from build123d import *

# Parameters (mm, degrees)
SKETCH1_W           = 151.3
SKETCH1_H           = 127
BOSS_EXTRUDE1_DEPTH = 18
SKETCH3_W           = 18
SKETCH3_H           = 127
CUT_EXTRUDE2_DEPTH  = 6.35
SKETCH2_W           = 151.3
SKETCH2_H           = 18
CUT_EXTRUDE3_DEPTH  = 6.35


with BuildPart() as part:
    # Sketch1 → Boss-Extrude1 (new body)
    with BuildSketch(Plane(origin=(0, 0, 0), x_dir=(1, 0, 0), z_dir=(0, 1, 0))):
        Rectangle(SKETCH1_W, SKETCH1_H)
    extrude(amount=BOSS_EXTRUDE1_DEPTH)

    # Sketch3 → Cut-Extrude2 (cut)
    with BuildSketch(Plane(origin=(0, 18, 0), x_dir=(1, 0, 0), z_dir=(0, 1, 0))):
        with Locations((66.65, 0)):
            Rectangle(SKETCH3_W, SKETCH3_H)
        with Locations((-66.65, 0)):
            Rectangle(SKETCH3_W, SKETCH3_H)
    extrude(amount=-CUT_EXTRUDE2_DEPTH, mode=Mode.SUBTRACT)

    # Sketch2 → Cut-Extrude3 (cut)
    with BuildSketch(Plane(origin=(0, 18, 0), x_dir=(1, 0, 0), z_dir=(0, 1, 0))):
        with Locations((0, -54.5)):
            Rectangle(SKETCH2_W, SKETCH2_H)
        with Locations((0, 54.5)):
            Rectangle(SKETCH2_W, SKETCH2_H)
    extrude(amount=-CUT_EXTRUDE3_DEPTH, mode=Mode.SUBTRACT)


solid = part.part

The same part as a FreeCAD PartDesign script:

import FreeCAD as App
import Part
import Sketcher

V = App.Vector
Q = App.Units.Quantity

doc = App.newDocument("Part")
params = doc.addObject("Spreadsheet::Sheet", "Params")
for row, (alias, value) in enumerate([
    ("sketch1_height", "127 mm"),
    ("sketch1_width", "151.3 mm"),
    ("pad1_length", "18 mm"),
    ("sketch2_width", "18 mm"),
    ("sketch2_height", "127 mm"),
    ("pocket1_length", "6.35 mm"),
    ("sketch3_height", "18 mm"),
    ("sketch3_width", "151.3 mm"),
    ("pocket2_length", "6.35 mm"),
], start=1):
    params.set(f"A{row}", alias)
    params.set(f"B{row}", "=" + value)
    params.setAlias(f"B{row}", alias)

body = doc.addObject("PartDesign::Body", "Body")

sketch1 = body.newObject("Sketcher::SketchObject", "Sketch")
sketch1.AttachmentSupport = (doc.getObject("XZ_Plane"), [""])
sketch1.MapMode = "FlatFace"
sketch1.addGeometry([
    Part.LineSegment(V(-76, -64, 0), V(-76, 64, 0)),
    Part.LineSegment(V(-76, 64, 0), V(76, 64, 0)),
    Part.LineSegment(V(76, 64, 0), V(76, -64, 0)),
    Part.LineSegment(V(76, -64, 0), V(-76, -64, 0)),
], False)
sketch1.addConstraint([
    Sketcher.Constraint("Coincident", 0, 2, 1, 1),
    Sketcher.Constraint("Coincident", 1, 2, 2, 1),
    Sketcher.Constraint("Coincident", 2, 2, 3, 1),
    Sketcher.Constraint("Coincident", 3, 2, 0, 1),
    Sketcher.Constraint("Vertical", 0),
    Sketcher.Constraint("Horizontal", 1),
    Sketcher.Constraint("Vertical", 2),
    Sketcher.Constraint("Horizontal", 3),
    Sketcher.Constraint("Symmetric", 0, 2, 2, 2, -1, 1),
    Sketcher.Constraint("DistanceY", 0, 1, 0, 2, Q("127 mm")),
    Sketcher.Constraint("DistanceX", 1, 1, 1, 2, Q("151.3 mm")),
])
sketch1.setExpression("Constraints[9]", "Params.sketch1_height")
sketch1.setExpression("Constraints[10]", "Params.sketch1_width")
pad1 = body.newObject("PartDesign::Pad", "Pad")
pad1.Profile = sketch1
pad1.setExpression("Length", "Params.pad1_length")
pad1.Reversed = True

sketch2 = body.newObject("Sketcher::SketchObject", "Sketch001")
sketch2.AttachmentSupport = (doc.getObject("XZ_Plane"), [""])
sketch2.MapMode = "FlatFace"
sketch2.AttachmentOffset = App.Placement(V(0, 0, -18), App.Rotation())
sketch2.addGeometry([
    Part.LineSegment(V(58, -64, 0), V(58, 64, 0)),
    Part.LineSegment(V(58, 64, 0), V(76, 64, 0)),
    Part.LineSegment(V(76, 64, 0), V(76, -64, 0)),
    Part.LineSegment(V(76, -64, 0), V(58, -64, 0)),
    Part.LineSegment(V(-76, -64, 0), V(-76, 64, 0)),
    Part.LineSegment(V(-76, 64, 0), V(-58, 64, 0)),
    Part.LineSegment(V(-58, 64, 0), V(-58, -64, 0)),
    Part.LineSegment(V(-58, -64, 0), V(-76, -64, 0)),
], False)
sketch2.addConstraint([
    Sketcher.Constraint("Coincident", 0, 2, 1, 1),
    Sketcher.Constraint("Coincident", 1, 2, 2, 1),
    Sketcher.Constraint("Coincident", 2, 2, 3, 1),
    Sketcher.Constraint("Coincident", 3, 2, 0, 1),
    Sketcher.Constraint("Coincident", 4, 2, 5, 1),
    Sketcher.Constraint("Coincident", 5, 2, 6, 1),
    Sketcher.Constraint("Coincident", 6, 2, 7, 1),
    Sketcher.Constraint("Coincident", 7, 2, 4, 1),
    Sketcher.Constraint("Vertical", 0),
    Sketcher.Constraint("Horizontal", 1),
    Sketcher.Constraint("Vertical", 2),
    Sketcher.Constraint("Horizontal", 3),
    Sketcher.Constraint("Vertical", 4),
    Sketcher.Constraint("Horizontal", 5),
    Sketcher.Constraint("Vertical", 6),
    Sketcher.Constraint("Horizontal", 7),
    Sketcher.Constraint("Symmetric", 2, 2, 4, 2, -1, 1),
    Sketcher.Constraint("Symmetric", 0, 2, 6, 2, -1, 1),
    Sketcher.Constraint("Horizontal", 1, 2, 4, 2),
    Sketcher.Constraint("DistanceX", 1, 1, 1, 2, Q("18 mm")),
    Sketcher.Constraint("DistanceY", 0, 1, 0, 2, Q("127 mm")),
    Sketcher.Constraint("DistanceX", 4, 2, 0, 2, Q("133.3 mm")),
])
sketch2.setExpression("Constraints[19]", "Params.sketch2_width")
sketch2.setExpression("Constraints[20]", "Params.sketch2_height")
pocket1 = body.newObject("PartDesign::Pocket", "Pocket")
pocket1.Profile = sketch2
pocket1.setExpression("Length", "Params.pocket1_length")
pocket1.Reversed = True

sketch3 = body.newObject("Sketcher::SketchObject", "Sketch002")
sketch3.AttachmentSupport = (doc.getObject("XZ_Plane"), [""])
sketch3.MapMode = "FlatFace"
sketch3.AttachmentOffset = App.Placement(V(0, 0, -18), App.Rotation())
sketch3.addGeometry([
    Part.LineSegment(V(-76, 46, 0), V(-76, 64, 0)),
    Part.LineSegment(V(-76, 64, 0), V(76, 64, 0)),
    Part.LineSegment(V(76, 64, 0), V(76, 46, 0)),
    Part.LineSegment(V(76, 46, 0), V(-76, 46, 0)),
    Part.LineSegment(V(-76, -64, 0), V(-76, -46, 0)),
    Part.LineSegment(V(-76, -46, 0), V(76, -46, 0)),
    Part.LineSegment(V(76, -46, 0), V(76, -64, 0)),
    Part.LineSegment(V(76, -64, 0), V(-76, -64, 0)),
], False)
sketch3.addConstraint([
    Sketcher.Constraint("Coincident", 0, 2, 1, 1),
    Sketcher.Constraint("Coincident", 1, 2, 2, 1),
    Sketcher.Constraint("Coincident", 2, 2, 3, 1),
    Sketcher.Constraint("Coincident", 3, 2, 0, 1),
    Sketcher.Constraint("Coincident", 4, 2, 5, 1),
    Sketcher.Constraint("Coincident", 5, 2, 6, 1),
    Sketcher.Constraint("Coincident", 6, 2, 7, 1),
    Sketcher.Constraint("Coincident", 7, 2, 4, 1),
    Sketcher.Constraint("Vertical", 0),
    Sketcher.Constraint("Horizontal", 1),
    Sketcher.Constraint("Vertical", 2),
    Sketcher.Constraint("Horizontal", 3),
    Sketcher.Constraint("Vertical", 4),
    Sketcher.Constraint("Horizontal", 5),
    Sketcher.Constraint("Vertical", 6),
    Sketcher.Constraint("Horizontal", 7),
    Sketcher.Constraint("Symmetric", 2, 2, 4, 2, -1, 1),
    Sketcher.Constraint("Symmetric", 0, 2, 6, 2, -1, 1),
    Sketcher.Constraint("Vertical", 3, 2, 4, 2),
    Sketcher.Constraint("DistanceY", 0, 1, 0, 2, Q("18 mm")),
    Sketcher.Constraint("DistanceX", 1, 1, 1, 2, Q("151.3 mm")),
    Sketcher.Constraint("DistanceY", 4, 2, 3, 2, Q("91 mm")),
])
sketch3.setExpression("Constraints[19]", "Params.sketch3_height")
sketch3.setExpression("Constraints[20]", "Params.sketch3_width")
pocket2 = body.newObject("PartDesign::Pocket", "Pocket001")
pocket2.Profile = sketch3
pocket2.setExpression("Length", "Params.pocket2_length")
pocket2.Reversed = True

doc.recompute()
